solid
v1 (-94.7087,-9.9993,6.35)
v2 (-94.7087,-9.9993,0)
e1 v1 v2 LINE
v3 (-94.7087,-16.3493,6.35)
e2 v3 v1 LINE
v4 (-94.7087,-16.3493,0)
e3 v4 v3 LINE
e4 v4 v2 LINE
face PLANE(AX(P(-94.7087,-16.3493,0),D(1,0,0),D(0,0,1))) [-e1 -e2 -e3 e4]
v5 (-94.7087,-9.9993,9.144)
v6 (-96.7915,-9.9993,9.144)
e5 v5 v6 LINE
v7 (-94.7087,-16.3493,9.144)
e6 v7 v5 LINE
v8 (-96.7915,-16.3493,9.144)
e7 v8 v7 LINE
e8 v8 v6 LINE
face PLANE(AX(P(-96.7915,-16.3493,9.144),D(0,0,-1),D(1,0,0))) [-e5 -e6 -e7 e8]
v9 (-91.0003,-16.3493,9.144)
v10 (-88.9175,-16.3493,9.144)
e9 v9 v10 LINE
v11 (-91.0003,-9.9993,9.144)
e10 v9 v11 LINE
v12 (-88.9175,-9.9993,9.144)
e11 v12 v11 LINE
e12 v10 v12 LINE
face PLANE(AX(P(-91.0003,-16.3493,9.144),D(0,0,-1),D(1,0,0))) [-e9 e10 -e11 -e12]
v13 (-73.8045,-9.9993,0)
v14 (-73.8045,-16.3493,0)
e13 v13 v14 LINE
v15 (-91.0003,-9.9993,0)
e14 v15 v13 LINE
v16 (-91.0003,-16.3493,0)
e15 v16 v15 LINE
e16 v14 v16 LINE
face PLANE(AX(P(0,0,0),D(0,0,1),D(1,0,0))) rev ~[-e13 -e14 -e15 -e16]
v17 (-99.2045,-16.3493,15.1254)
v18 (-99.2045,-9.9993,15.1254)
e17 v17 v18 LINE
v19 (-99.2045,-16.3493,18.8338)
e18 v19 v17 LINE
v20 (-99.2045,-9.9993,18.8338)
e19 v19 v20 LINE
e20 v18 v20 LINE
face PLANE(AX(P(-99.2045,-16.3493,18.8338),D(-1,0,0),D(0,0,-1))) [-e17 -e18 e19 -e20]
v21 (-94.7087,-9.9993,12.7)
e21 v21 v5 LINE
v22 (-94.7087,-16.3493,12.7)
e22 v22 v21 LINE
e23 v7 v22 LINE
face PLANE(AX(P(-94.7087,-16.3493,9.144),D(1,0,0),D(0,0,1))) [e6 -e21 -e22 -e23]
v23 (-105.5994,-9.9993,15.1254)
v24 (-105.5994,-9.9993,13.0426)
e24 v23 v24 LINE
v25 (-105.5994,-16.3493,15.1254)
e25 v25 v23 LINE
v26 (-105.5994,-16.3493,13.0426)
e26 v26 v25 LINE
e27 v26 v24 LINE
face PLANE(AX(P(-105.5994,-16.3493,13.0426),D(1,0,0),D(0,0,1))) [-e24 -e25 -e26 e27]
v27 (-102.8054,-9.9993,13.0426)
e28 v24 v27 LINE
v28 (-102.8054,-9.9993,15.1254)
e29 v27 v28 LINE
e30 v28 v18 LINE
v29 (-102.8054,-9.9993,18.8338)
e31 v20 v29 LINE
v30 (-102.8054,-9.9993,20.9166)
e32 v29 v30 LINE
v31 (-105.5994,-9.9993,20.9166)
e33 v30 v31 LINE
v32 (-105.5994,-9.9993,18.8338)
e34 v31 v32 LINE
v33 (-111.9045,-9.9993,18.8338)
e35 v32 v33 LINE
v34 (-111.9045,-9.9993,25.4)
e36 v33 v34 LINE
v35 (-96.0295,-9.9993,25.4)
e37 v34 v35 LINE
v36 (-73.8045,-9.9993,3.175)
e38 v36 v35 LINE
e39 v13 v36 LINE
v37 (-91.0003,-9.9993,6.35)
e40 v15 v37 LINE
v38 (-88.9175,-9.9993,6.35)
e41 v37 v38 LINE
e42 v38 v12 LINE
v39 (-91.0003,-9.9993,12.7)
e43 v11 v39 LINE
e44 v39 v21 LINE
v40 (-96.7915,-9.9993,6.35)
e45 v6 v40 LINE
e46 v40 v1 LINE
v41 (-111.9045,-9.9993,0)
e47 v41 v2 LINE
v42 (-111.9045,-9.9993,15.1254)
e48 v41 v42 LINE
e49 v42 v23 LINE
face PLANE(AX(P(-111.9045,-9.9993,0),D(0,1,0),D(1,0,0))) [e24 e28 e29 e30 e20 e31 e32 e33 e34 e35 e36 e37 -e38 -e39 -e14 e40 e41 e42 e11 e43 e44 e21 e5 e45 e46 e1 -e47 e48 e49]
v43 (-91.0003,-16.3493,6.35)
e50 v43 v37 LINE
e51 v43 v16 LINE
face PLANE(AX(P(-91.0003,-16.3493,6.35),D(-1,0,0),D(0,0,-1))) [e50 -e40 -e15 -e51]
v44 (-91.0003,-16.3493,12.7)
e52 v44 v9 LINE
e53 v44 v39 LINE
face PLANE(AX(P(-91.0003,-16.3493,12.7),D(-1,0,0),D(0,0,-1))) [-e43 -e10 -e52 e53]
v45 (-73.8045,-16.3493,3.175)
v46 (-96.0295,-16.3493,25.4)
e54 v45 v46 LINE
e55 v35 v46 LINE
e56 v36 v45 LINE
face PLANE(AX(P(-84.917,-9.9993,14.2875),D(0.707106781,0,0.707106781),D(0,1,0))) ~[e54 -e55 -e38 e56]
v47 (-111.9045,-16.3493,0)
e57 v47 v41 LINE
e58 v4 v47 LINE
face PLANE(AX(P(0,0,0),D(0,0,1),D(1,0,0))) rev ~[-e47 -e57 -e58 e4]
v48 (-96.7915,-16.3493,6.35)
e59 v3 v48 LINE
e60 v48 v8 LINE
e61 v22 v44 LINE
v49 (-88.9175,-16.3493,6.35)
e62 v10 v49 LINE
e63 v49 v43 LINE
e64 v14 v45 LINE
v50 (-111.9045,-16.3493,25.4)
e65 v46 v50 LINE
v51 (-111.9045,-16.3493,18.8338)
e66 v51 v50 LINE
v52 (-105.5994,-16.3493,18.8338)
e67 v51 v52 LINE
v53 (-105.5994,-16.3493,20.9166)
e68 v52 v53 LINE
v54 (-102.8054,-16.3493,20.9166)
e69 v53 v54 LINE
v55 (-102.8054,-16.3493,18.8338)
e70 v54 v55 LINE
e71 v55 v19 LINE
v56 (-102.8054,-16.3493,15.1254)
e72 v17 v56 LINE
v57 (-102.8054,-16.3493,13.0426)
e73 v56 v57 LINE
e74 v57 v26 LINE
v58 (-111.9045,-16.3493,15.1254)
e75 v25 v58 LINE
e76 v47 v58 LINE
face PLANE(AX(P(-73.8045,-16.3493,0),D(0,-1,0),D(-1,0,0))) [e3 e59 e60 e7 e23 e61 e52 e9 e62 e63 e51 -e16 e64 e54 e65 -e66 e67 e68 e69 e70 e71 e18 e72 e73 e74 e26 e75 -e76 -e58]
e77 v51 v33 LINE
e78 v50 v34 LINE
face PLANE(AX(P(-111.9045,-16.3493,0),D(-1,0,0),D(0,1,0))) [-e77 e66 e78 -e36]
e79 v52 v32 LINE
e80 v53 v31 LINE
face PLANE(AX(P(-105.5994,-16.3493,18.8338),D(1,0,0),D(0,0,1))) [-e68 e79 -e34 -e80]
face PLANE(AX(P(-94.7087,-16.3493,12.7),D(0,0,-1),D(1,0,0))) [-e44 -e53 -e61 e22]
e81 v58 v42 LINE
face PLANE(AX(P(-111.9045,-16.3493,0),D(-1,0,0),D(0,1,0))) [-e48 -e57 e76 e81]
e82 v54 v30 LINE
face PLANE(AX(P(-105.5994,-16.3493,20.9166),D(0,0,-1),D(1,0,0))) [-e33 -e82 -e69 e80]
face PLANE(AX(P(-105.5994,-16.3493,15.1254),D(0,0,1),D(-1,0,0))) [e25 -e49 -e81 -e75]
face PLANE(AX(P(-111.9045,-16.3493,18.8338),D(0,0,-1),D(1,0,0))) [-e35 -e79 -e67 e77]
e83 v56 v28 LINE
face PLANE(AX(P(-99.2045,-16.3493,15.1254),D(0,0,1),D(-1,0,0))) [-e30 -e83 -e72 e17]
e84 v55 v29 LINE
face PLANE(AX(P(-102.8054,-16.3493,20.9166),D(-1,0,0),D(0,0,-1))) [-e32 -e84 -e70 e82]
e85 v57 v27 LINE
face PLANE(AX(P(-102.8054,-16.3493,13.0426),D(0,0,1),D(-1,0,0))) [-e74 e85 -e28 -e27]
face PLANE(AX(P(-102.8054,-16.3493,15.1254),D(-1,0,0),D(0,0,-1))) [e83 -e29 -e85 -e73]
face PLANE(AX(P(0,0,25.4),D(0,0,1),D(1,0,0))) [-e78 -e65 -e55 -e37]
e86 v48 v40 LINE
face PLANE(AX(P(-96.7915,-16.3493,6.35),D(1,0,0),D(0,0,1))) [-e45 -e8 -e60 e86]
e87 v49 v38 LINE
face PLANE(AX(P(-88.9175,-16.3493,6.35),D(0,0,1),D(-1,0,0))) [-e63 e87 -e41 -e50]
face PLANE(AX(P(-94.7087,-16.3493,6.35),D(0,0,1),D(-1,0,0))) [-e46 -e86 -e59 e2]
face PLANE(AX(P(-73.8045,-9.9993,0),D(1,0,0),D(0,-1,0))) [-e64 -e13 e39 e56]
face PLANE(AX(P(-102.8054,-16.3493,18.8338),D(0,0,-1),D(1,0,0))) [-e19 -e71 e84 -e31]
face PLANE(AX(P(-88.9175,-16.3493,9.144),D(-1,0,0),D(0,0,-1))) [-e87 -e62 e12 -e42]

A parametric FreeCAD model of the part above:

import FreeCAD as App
import Part
import Sketcher
Q = App.Units.Quantity


def edges_at(feature, points):
    """Names of the edges that pass closest to the given points."""
    edges = feature.Shape.Edges
    near = lambda p: min(range(len(edges)), key=lambda i: edges[i].distToShape(Part.Vertex(*p))[0])
    return sorted({f"Edge{near(p) + 1}" for p in points})


def add_polygon(sketch, points):
    """Adds a closed chain of lines whose ends are joined by coincident constraints."""
    first, n = sketch.GeometryCount, len(points)
    for a, b in zip(points, points[1:] + points[:1]):
        sketch.addGeometry(Part.LineSegment(App.Vector(*a, 0), App.Vector(*b, 0)), False)
    for i in range(n):
        sketch.addConstraint(Sketcher.Constraint("Coincident", first + i, 2, first + (i + 1) % n, 1))

doc = App.newDocument("Part")
body = doc.addObject("PartDesign::Body", "Body")

sketch1 = body.newObject("Sketcher::SketchObject", "Sketch")
sketch1.AttachmentSupport = (doc.getObject("XY_Plane"), [""])
sketch1.MapMode = "FlatFace"
add_polygon(sketch1, [(-74, -10), (-112, -10), (-112, -16), (-74, -16)])
sketch1.addConstraint([
    Sketcher.Constraint("Horizontal", 0),
    Sketcher.Constraint("Vertical", 1),
    Sketcher.Constraint("Horizontal", 2),
    Sketcher.Constraint("Vertical", 3),
    Sketcher.Constraint("DistanceX", 0, 2, 0, 1, Q("1.5 in")),
    Sketcher.Constraint("DistanceY", 1, 2, 1, 1, Q("0.25 in")),
    Sketcher.Constraint("DistanceX", 0, 2, -1, 1, Q("4.4057 in")),
    Sketcher.Constraint("DistanceY", 0, 2, -1, 1, 9.9993),
])
pad1 = body.newObject("PartDesign::Pad", "Pad")
pad1.Profile = sketch1
pad1.Length = Q("1 in")
doc.recompute()

chamfer = body.newObject("PartDesign::Chamfer", "Chamfer")
chamfer.Base = (pad1, edges_at(pad1, [(-73.805, -13.174, 25.4)]))
chamfer.Size = Q("0.875 in")

sketch2 = body.newObject("Sketcher::SketchObject", "Sketch001")
sketch2.AttachmentSupport = (doc.getObject("XZ_Plane"), [""])
sketch2.MapMode = "FlatFace"
sketch2.AttachmentOffset = App.Placement(App.Vector(0, 0, 16.3493), App.Rotation())
add_polygon(sketch2, [(-111.9, 18.8), (-111.9, 15.1), (-105.6, 15.1), (-105.6, 13), (-102.8, 13), (-102.8, 15.1), (-99.2, 15.1), (-99.2, 18.8), (-102.8, 18.8), (-102.8, 20.9), (-105.6, 20.9), (-105.6, 18.8)])
add_polygon(sketch2, [(-94.7, 0), (-91, 0), (-91, 6.3), (-88.9, 6.3), (-88.9, 9.1), (-91, 9.1), (-91, 12.7), (-94.7, 12.7), (-94.7, 9.1), (-96.8, 9.1), (-96.8, 6.3), (-94.7, 6.3)])
sketch2.addConstraint([
    Sketcher.Constraint("Vertical", 0),
    Sketcher.Constraint("Horizontal", 1),
    Sketcher.Constraint("Vertical", 2),
    Sketcher.Constraint("Horizontal", 3),
    Sketcher.Constraint("Vertical", 4),
    Sketcher.Constraint("Horizontal", 5),
    Sketcher.Constraint("Vertical", 6),
    Sketcher.Constraint("Horizontal", 7),
    Sketcher.Constraint("Vertical", 8),
    Sketcher.Constraint("Horizontal", 9),
    Sketcher.Constraint("Vertical", 10),
    Sketcher.Constraint("Horizontal", 11),
    Sketcher.Constraint("Horizontal", 12),
    Sketcher.Constraint("Vertical", 13),
    Sketcher.Constraint("Horizontal", 14),
    Sketcher.Constraint("Vertical", 15),
    Sketcher.Constraint("Horizontal", 16),
    Sketcher.Constraint("Vertical", 17),
    Sketcher.Constraint("Horizontal", 18),
    Sketcher.Constraint("Vertical", 19),
    Sketcher.Constraint("Horizontal", 20),
    Sketcher.Constraint("Vertical", 21),
    Sketcher.Constraint("Horizontal", 22),
    Sketcher.Constraint("Vertical", 23),
    Sketcher.Constraint("PointOnObject", 12, 2, -1),
    Sketcher.Constraint("Horizontal", 1, 2, 4, 2),
    Sketcher.Constraint("Horizontal", 7, 2, 10, 2),
    Sketcher.Constraint("Horizontal", 16, 2, 19, 2),
    Sketcher.Constraint("Horizontal", 14, 2, 21, 2),
    Sketcher.Constraint("Vertical", 4, 2, 7, 2),
    Sketcher.Constraint("Vertical", 2, 2, 9, 2),
    Sketcher.Constraint("Vertical", 13, 2, 16, 2),
    Sketcher.Constraint("Vertical", 19, 2, 22, 2),
    Sketcher.Constraint("Equal", 16, 20),
    Sketcher.Constraint("Equal", 18, 0),
    Sketcher.Constraint("Equal", 22, 2),
    Sketcher.Constraint("Equal", 4, 8),
    Sketcher.Constraint("Equal", 9, 15),
    Sketcher.Constraint("DistanceX", 3, 1, 3, 2, Q("0.11 in")),
    Sketcher.Constraint("DistanceY", 13, 1, 13, 2, Q("0.25 in")),
    Sketcher.Constraint("DistanceY", -1, 1, 17, 2, Q("0.5 in")),
    Sketcher.Constraint("DistanceX", 0, 2, 5, 2, Q("0.5 in")),
    Sketcher.Constraint("DistanceX", 12, 1, 12, 2, Q("0.146 in")),
    Sketcher.Constraint("DistanceX", 14, 1, 14, 2, Q("0.082 in")),
    Sketcher.Constraint("DistanceX", 5, 2, 12, 2, Q("0.323 in")),
    Sketcher.Constraint("DistanceX", 1, 1, 1, 2, 6.305),
    Sketcher.Constraint("DistanceX", 0, 2, -1, 1, Q("4.4057 in")),
    Sketcher.Constraint("DistanceY", -1, 1, 0, 2, Q("0.5955 in")),
])
pocket1 = body.newObject("PartDesign::Pocket", "Pocket")
pocket1.Profile = sketch2
pocket1.Type = "ThroughAll"

doc.recompute()
